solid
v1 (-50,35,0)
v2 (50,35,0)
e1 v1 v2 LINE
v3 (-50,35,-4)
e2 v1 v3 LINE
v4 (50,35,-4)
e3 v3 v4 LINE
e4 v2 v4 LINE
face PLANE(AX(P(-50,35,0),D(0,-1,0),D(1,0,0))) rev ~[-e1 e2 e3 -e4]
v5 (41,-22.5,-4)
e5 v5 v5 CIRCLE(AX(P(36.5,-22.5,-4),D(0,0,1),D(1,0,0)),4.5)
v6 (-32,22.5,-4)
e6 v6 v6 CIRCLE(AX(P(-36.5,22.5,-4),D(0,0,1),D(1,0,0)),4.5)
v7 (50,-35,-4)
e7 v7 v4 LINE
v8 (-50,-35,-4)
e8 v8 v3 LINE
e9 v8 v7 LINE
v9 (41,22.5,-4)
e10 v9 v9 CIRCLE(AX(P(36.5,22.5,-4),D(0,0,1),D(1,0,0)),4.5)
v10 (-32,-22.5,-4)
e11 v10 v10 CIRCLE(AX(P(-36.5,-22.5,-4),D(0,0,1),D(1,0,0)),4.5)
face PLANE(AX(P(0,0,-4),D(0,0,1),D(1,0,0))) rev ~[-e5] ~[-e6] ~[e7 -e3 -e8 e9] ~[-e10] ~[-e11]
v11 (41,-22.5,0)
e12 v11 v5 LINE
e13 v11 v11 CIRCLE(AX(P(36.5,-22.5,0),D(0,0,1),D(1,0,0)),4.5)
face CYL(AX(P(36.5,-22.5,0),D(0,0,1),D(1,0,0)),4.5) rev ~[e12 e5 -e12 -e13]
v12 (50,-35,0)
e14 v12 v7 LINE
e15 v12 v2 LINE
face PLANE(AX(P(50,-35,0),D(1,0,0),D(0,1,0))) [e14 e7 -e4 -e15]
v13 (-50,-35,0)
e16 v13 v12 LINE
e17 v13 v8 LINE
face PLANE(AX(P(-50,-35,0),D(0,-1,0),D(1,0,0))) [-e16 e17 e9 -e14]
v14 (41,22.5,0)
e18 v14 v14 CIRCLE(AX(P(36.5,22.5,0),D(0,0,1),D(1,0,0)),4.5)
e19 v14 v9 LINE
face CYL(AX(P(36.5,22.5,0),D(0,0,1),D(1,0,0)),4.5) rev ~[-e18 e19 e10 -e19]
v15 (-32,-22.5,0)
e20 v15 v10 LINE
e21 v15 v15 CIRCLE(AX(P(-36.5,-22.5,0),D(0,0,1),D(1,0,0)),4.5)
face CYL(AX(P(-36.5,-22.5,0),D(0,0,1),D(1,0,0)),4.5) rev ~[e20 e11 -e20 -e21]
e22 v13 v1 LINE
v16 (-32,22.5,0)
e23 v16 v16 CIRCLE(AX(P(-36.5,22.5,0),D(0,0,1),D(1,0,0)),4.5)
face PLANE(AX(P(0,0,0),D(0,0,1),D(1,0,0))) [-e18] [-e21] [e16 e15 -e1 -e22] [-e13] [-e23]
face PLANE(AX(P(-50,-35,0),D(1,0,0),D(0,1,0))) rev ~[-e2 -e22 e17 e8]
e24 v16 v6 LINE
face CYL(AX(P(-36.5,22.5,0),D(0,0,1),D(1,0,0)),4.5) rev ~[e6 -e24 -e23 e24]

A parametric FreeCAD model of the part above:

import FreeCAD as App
import Part
import Sketcher
from FreeCAD import Vector
Q = App.Units.Quantity

doc = App.newDocument("Part")
body = doc.addObject("PartDesign::Body", "Body")

# Sketch on XY plane
sketch1 = body.newObject("Sketcher::SketchObject", "Sketch")
sketch1.AttachmentSupport = (doc.getObject("XY_Plane"), [""])
sketch1.MapMode = "FlatFace"
sketch1.addGeometry([
    Part.LineSegment(Vector(-50, 35, 0), Vector(-50, -35, 0)),
    Part.LineSegment(Vector(-50, -35, 0), Vector(50, -35, 0)),
    Part.LineSegment(Vector(50, -35, 0), Vector(50, 35, 0)),
    Part.LineSegment(Vector(50, 35, 0), Vector(-50, 35, 0)),
], False)
sketch1.addConstraint([
    Sketcher.Constraint("Coincident", 0, 2, 1, 1),
    Sketcher.Constraint("Coincident", 1, 2, 2, 1),
    Sketcher.Constraint("Coincident", 2, 2, 3, 1),
    Sketcher.Constraint("Coincident", 3, 2, 0, 1),
    Sketcher.Constraint("Vertical", 0),
    Sketcher.Constraint("Horizontal", 1),
    Sketcher.Constraint("Vertical", 2),
    Sketcher.Constraint("Horizontal", 3),
    Sketcher.Constraint("Symmetric", 0, 2, 2, 2, -1, 1),
    Sketcher.Constraint("DistanceX", 1, 1, 1, 2, Q("100 mm")),
    Sketcher.Constraint("DistanceY", 0, 2, 0, 1, Q("70 mm")),
])
pad1 = body.newObject("PartDesign::Pad", "Pad")
pad1.Profile = sketch1
pad1.Length = 4
pad1.Reversed = True

# Sketch on XY plane
sketch2 = body.newObject("Sketcher::SketchObject", "Sketch001")
sketch2.AttachmentSupport = (doc.getObject("XY_Plane"), [""])
sketch2.MapMode = "FlatFace"
sketch2.addGeometry([
    Part.Circle(Vector(-36.5, 22.5, 0), Vector(0, 0, 1), 4.5),
    Part.Circle(Vector(36.5, 22.5, 0), Vector(0, 0, 1), 4.5),
    Part.Circle(Vector(-36.5, -22.5, 0), Vector(0, 0, 1), 4.5),
    Part.Circle(Vector(36.5, -22.5, 0), Vector(0, 0, 1), 4.5),
], False)
sketch2.addConstraint([
    Sketcher.Constraint("Equal", 0, 1),
    Sketcher.Constraint("Equal", 1, 2),
    Sketcher.Constraint("Equal", 2, 3),
    Sketcher.Constraint("Symmetric", 1, 3, 2, 3, -1, 1),
    Sketcher.Constraint("Symmetric", 0, 3, 3, 3, -1, 1),
    Sketcher.Constraint("Symmetric", 0, 3, 1, 3, -2),
    Sketcher.Constraint("Diameter", 0, Q("9 mm")),
    Sketcher.Constraint("DistanceX", 0, 3, 1, 3, Q("73 mm")),
    Sketcher.Constraint("DistanceY", 2, 3, 0, 3, Q("45 mm")),
])
pocket1 = body.newObject("PartDesign::Pocket", "Pocket")
pocket1.Profile = sketch2
pocket1.Type = "ThroughAll"

doc.recompute()
